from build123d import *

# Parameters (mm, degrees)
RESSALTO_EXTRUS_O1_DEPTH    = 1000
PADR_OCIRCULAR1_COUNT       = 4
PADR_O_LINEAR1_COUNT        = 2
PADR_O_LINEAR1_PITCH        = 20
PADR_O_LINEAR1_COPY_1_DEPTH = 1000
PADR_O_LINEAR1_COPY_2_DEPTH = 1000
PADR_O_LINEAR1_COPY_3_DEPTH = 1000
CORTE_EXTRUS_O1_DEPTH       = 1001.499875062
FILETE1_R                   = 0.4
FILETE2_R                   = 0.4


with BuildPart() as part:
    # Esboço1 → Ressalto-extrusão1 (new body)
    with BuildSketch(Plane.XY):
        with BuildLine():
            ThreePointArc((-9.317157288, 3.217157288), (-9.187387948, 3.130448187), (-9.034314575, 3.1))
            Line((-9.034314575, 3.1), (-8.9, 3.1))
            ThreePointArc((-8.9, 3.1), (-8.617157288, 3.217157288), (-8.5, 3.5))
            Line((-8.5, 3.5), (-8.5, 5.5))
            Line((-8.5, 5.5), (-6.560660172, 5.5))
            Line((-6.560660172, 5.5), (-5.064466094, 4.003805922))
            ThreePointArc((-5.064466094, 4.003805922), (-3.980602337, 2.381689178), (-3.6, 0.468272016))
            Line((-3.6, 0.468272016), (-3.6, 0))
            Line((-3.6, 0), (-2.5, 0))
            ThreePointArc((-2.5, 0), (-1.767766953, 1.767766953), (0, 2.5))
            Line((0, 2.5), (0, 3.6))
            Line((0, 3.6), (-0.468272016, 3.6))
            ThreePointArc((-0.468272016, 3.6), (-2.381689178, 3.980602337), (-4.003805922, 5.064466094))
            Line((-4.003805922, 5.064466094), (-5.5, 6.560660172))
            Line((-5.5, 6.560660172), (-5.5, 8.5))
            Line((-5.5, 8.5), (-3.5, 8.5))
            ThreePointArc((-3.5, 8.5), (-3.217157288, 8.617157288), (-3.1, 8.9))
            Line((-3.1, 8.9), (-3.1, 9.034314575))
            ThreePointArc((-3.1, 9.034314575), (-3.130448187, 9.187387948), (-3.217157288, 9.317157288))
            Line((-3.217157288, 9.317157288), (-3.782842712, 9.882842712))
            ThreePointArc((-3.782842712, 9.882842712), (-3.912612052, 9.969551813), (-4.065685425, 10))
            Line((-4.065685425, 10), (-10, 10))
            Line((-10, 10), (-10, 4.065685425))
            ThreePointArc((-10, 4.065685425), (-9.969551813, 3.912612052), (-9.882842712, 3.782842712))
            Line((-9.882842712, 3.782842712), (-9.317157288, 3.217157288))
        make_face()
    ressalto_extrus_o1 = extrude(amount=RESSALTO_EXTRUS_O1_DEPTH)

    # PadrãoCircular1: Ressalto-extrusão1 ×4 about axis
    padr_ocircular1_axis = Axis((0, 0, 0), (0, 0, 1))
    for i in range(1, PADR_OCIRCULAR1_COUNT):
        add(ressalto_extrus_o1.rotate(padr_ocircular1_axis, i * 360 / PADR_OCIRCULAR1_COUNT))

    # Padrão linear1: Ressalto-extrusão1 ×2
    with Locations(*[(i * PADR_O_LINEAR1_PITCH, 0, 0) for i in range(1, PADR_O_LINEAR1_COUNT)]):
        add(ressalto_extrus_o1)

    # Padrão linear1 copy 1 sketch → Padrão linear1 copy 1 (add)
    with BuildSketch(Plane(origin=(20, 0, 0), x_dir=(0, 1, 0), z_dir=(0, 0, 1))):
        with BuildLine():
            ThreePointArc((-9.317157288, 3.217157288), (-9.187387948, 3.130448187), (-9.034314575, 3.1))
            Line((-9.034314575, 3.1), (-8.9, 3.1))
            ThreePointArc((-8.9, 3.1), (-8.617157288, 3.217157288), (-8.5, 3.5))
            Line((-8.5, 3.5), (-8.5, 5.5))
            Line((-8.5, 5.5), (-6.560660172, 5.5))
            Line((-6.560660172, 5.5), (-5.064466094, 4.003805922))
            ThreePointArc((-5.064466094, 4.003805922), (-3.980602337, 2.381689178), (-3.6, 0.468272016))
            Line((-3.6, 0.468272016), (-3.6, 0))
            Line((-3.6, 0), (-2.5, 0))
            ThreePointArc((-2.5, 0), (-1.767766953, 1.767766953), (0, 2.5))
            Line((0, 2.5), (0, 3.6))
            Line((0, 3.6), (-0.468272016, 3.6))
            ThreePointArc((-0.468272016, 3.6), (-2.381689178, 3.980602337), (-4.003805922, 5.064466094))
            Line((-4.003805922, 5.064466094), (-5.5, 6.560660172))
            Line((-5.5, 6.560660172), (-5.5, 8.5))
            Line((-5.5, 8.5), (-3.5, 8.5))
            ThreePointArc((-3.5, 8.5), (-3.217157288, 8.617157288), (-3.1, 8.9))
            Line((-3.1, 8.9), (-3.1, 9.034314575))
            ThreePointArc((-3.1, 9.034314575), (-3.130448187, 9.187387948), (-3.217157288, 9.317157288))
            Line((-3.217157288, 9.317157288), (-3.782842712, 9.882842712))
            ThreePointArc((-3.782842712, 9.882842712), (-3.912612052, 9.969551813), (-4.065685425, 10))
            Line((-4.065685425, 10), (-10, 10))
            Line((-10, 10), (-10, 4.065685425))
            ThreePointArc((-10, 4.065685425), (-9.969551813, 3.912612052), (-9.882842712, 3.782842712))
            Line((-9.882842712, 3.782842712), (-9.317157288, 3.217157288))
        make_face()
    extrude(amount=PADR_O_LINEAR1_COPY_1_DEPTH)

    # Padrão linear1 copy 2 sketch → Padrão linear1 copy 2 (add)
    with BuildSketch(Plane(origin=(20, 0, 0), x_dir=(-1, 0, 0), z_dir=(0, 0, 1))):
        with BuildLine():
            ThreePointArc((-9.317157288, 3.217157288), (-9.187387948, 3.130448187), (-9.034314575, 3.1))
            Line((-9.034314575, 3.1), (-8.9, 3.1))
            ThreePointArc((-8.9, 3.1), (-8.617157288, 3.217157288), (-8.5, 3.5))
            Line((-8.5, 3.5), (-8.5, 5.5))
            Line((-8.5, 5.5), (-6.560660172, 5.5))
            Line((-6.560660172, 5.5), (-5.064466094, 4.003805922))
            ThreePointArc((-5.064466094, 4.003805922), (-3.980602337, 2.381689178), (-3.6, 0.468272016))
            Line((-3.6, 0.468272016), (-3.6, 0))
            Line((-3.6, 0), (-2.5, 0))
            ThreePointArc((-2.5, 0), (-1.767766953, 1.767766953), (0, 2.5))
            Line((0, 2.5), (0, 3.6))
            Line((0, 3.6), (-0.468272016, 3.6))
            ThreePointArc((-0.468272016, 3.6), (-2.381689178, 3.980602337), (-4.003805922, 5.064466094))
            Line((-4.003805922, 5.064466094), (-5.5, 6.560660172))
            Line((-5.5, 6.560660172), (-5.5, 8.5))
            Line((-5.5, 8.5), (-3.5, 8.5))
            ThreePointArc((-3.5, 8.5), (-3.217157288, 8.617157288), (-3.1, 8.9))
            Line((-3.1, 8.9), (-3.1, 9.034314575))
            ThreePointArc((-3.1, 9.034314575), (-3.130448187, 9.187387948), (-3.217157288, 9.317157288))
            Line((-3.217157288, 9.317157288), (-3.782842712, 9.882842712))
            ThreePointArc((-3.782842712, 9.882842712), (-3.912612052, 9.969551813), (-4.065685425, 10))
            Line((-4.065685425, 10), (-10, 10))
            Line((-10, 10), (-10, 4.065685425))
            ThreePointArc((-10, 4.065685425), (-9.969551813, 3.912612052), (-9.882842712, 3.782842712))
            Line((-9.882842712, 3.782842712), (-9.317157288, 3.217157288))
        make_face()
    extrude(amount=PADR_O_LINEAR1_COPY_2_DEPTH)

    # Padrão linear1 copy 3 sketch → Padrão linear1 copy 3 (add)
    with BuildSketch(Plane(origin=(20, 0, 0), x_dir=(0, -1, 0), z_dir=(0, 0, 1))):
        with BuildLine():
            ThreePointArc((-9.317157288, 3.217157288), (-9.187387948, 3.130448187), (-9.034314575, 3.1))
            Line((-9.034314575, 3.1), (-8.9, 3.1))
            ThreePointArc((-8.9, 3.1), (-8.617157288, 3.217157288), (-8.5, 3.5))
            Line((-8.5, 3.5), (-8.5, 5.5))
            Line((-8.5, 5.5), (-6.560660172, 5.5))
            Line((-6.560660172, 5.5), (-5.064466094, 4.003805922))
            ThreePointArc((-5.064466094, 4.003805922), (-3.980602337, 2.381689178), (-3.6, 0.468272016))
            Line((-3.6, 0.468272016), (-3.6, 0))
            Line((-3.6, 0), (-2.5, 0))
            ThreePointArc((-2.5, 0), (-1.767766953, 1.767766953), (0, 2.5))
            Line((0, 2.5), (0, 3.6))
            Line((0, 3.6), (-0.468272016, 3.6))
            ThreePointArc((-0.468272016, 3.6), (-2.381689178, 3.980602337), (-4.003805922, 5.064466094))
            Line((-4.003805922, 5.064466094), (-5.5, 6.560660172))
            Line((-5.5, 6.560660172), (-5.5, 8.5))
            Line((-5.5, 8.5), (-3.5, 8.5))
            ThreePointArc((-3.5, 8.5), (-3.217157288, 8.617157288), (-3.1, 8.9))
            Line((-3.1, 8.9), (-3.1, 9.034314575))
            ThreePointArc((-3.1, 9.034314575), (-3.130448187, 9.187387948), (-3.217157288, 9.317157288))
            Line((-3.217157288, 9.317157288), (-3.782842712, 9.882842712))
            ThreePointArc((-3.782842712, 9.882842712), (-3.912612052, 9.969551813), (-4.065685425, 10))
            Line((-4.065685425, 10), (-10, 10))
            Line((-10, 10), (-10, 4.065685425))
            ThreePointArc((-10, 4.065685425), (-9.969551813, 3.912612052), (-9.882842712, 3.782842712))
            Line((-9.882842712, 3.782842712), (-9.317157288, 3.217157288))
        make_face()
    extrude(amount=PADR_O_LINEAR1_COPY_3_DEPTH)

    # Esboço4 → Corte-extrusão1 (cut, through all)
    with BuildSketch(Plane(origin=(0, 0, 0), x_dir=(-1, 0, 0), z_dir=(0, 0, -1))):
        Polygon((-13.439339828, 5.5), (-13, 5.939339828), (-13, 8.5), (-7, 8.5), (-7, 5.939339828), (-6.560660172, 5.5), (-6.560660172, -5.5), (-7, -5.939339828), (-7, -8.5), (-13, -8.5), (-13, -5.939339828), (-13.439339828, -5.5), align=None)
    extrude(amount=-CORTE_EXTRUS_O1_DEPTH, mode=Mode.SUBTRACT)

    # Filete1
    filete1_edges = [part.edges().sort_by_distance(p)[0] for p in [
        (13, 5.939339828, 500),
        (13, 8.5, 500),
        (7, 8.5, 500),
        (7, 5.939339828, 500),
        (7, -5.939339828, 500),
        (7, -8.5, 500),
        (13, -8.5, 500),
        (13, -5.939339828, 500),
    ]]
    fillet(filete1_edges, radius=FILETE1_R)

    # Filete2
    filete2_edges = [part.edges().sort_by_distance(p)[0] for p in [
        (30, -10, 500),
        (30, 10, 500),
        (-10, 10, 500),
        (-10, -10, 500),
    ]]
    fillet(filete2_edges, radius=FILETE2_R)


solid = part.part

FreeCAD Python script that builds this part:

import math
import FreeCAD as App
import Part
import Sketcher

V = App.Vector
Q = App.Units.Quantity


def edges_at(feature, points):
    """Names of the edges that pass closest to the given points."""
    edges = feature.Shape.Edges
    near = lambda p: min(range(len(edges)), key=lambda i: edges[i].distToShape(Part.Vertex(*p))[0])
    return sorted({f"Edge{near(p) + 1}" for p in points})

doc = App.newDocument("Part")
params = doc.addObject("Spreadsheet::Sheet", "Params")
for row, (alias, value) in enumerate([
    ("sketch1_radius", "5 mm"),
    ("sketch1_radius2", "0.4 mm"),
    ("sketch1_radius3", "2.5 mm"),
    ("sketch1_width", "2 mm"),
    ("sketch1_width2", "1.1 mm"),
    ("pad1_length", "1000 mm"),
    ("linearpattern_pitch", "20 mm"),
    ("sketch2_radius", "5 mm"),
    ("sketch2_radius2", "0.4 mm"),
    ("sketch2_radius3", "2.5 mm"),
    ("sketch2_width", "2 mm"),
    ("sketch2_width2", "1.1 mm"),
    ("pad2_length", "1000 mm"),
    ("sketch3_radius", "5 mm"),
    ("sketch3_radius2", "0.4 mm"),
    ("sketch3_radius3", "2.5 mm"),
    ("sketch3_width", "2 mm"),
    ("sketch3_width2", "1.1 mm"),
    ("pad3_length", "1000 mm"),
    ("sketch4_radius", "5 mm"),
    ("sketch4_radius2", "0.4 mm"),
    ("sketch4_radius3", "2.5 mm"),
    ("sketch4_width", "2 mm"),
    ("sketch4_width2", "1.1 mm"),
    ("pad4_length", "1000 mm"),
    ("sketch5_width", "6 mm"),
    ("sketch5_height", "11 mm"),
    ("fillet_radius", "0.4 mm"),
    ("fillet2_radius", "0.4 mm"),
], start=1):
    params.set(f"A{row}", alias)
    params.set(f"B{row}", "=" + value)
    params.setAlias(f"B{row}", alias)

body = doc.addObject("PartDesign::Body", "Body")

# Sketch on XY plane
sketch1 = doc.addObject("Sketcher::SketchObject", "Sketch")
body.addObject(sketch1)
sketch1.AttachmentSupport = (doc.XY_Plane, [""])
sketch1.MapMode = "FlatFace"
sketch1.addGeometry(Part.ArcOfCircle(Part.Circle(V(-9.034315, 3.5, 0), V(0, 0, 1), 0.4), math.radians(-135), math.radians(-90)), False)
sketch1.addGeometry(Part.LineSegment(V(-9.034315, 3.1, 0), V(-8.9, 3.1, 0)), False)
sketch1.addGeometry(Part.ArcOfCircle(Part.Circle(V(-8.9, 3.5, 0), V(0, 0, 1), 0.4), math.radians(-90), math.radians(0)), False)
sketch1.addGeometry(Part.LineSegment(V(-8.5, 3.5, 0), V(-8.5, 5.5, 0)), False)
sketch1.addGeometry(Part.LineSegment(V(-8.5, 5.5, 0), V(-6.56066, 5.5, 0)), False)
sketch1.addGeometry(Part.LineSegment(V(-6.56066, 5.5, 0), V(-5.064466, 4.003806, 0)), False)
sketch1.addGeometry(Part.ArcOfCircle(Part.Circle(V(-8.6, 0.468272, 0), V(0, 0, 1), 5), math.radians(0), math.radians(45)), False)
sketch1.addGeometry(Part.LineSegment(V(-3.6, 0.468272, 0), V(-3.6, 0, 0)), False)
sketch1.addGeometry(Part.LineSegment(V(-3.6, 0, 0), V(-2.5, 0, 0)), False)
sketch1.addGeometry(Part.ArcOfCircle(Part.Circle(V(0, 0, 0), V(0, 0, 1), 2.5), math.radians(90), math.radians(180)), False)
sketch1.addGeometry(Part.LineSegment(V(0, 2.5, 0), V(0, 3.6, 0)), False)
sketch1.addGeometry(Part.LineSegment(V(0, 3.6, 0), V(-0.468272, 3.6, 0)), False)
sketch1.addGeometry(Part.ArcOfCircle(Part.Circle(V(-0.468272, 8.6, 0), V(0, 0, 1), 5), math.radians(-135), math.radians(-90)), False)
sketch1.addGeometry(Part.LineSegment(V(-4.003806, 5.064466, 0), V(-5.5, 6.56066, 0)), False)
sketch1.addGeometry(Part.LineSegment(V(-5.5, 6.56066, 0), V(-5.5, 8.5, 0)), False)
sketch1.addGeometry(Part.LineSegment(V(-5.5, 8.5, 0), V(-3.5, 8.5, 0)), False)
sketch1.addGeometry(Part.ArcOfCircle(Part.Circle(V(-3.5, 8.9, 0), V(0, 0, 1), 0.4), math.radians(-90), math.radians(0)), False)
sketch1.addGeometry(Part.LineSegment(V(-3.1, 8.9, 0), V(-3.1, 9.034315, 0)), False)
sketch1.addGeometry(Part.ArcOfCircle(Part.Circle(V(-3.5, 9.034315, 0), V(0, 0, 1), 0.4), math.radians(0), math.radians(45)), False)
sketch1.addGeometry(Part.LineSegment(V(-3.217157, 9.317157, 0), V(-3.782843, 9.882843, 0)), False)
sketch1.addGeometry(Part.ArcOfCircle(Part.Circle(V(-4.065685, 9.6, 0), V(0, 0, 1), 0.4), math.radians(45), math.radians(90)), False)
sketch1.addGeometry(Part.LineSegment(V(-4.065685, 10, 0), V(-10, 10, 0)), False)
sketch1.addGeometry(Part.LineSegment(V(-10, 10, 0), V(-10, 4.065685, 0)), False)
sketch1.addGeometry(Part.ArcOfCircle(Part.Circle(V(-9.6, 4.065685, 0), V(0, 0, 1), 0.4), math.radians(180), math.radians(225)), False)
sketch1.addGeometry(Part.LineSegment(V(-9.882843, 3.782843, 0), V(-9.317157, 3.217157, 0)), False)
sketch1.addConstraint(Sketcher.Constraint("Tangent", 0, 2, 1, 1))
sketch1.addConstraint(Sketcher.Constraint("Tangent", 1, 2, 2, 1))
sketch1.addConstraint(Sketcher.Constraint("Tangent", 2, 2, 3, 1))
sketch1.addConstraint(Sketcher.Constraint("Coincident", 3, 2, 4, 1))
sketch1.addConstraint(Sketcher.Constraint("Coincident", 4, 2, 5, 1))
sketch1.addConstraint(Sketcher.Constraint("Tangent", 5, 2, 6, 2))
sketch1.addConstraint(Sketcher.Constraint("Tangent", 6, 1, 7, 1))
sketch1.addConstraint(Sketcher.Constraint("Coincident", 7, 2, 8, 1))
sketch1.addConstraint(Sketcher.Constraint("Coincident", 8, 2, 9, 2))
sketch1.addConstraint(Sketcher.Constraint("Coincident", 9, 1, 10, 1))
sketch1.addConstraint(Sketcher.Constraint("Coincident", 10, 2, 11, 1))
sketch1.addConstraint(Sketcher.Constraint("Tangent", 11, 2, 12, 2))
sketch1.addConstraint(Sketcher.Constraint("Tangent", 12, 1, 13, 1))
sketch1.addConstraint(Sketcher.Constraint("Coincident", 13, 2, 14, 1))
sketch1.addConstraint(Sketcher.Constraint("Coincident", 14, 2, 15, 1))
sketch1.addConstraint(Sketcher.Constraint("Tangent", 15, 2, 16, 1))
sketch1.addConstraint(Sketcher.Constraint("Tangent", 16, 2, 17, 1))
sketch1.addConstraint(Sketcher.Constraint("Tangent", 17, 2, 18, 1))
sketch1.addConstraint(Sketcher.Constraint("Tangent", 18, 2, 19, 1))
sketch1.addConstraint(Sketcher.Constraint("Tangent", 19, 2, 20, 1))
sketch1.addConstraint(Sketcher.Constraint("Tangent", 20, 2, 21, 1))
sketch1.addConstraint(Sketcher.Constraint("Coincident", 21, 2, 22, 1))
sketch1.addConstraint(Sketcher.Constraint("Tangent", 22, 2, 23, 1))
sketch1.addConstraint(Sketcher.Constraint("Tangent", 23, 2, 24, 1))
sketch1.addConstraint(Sketcher.Constraint("Tangent", 24, 2, 0, 1))
sketch1.addConstraint(Sketcher.Constraint("Horizontal", 1))
sketch1.addConstraint(Sketcher.Constraint("Vertical", 3))
sketch1.addConstraint(Sketcher.Constraint("Horizontal", 4))
sketch1.addConstraint(Sketcher.Constraint("Vertical", 7))
sketch1.addConstraint(Sketcher.Constraint("Horizontal", 8))
sketch1.addConstraint(Sketcher.Constraint("Vertical", 10))
sketch1.addConstraint(Sketcher.Constraint("Horizontal", 11))
sketch1.addConstraint(Sketcher.Constraint("Vertical", 14))
sketch1.addConstraint(Sketcher.Constraint("Horizontal", 15))
sketch1.addConstraint(Sketcher.Constraint("Vertical", 17))
sketch1.addConstraint(Sketcher.Constraint("Horizontal", 21))
sketch1.addConstraint(Sketcher.Constraint("Vertical", 22))
sketch1.addConstraint(Sketcher.Constraint("Coincident", 9, 3, -1, 1))
sketch1.addConstraint(Sketcher.Constraint("Equal", 0, 2))
sketch1.addConstraint(Sketcher.Constraint("Equal", 6, 12))
sketch1.addConstraint(Sketcher.Constraint("Equal", 2, 16))
sketch1.addConstraint(Sketcher.Constraint("Equal", 16, 18))
sketch1.addConstraint(Sketcher.Constraint("Equal", 18, 20))
sketch1.addConstraint(Sketcher.Constraint("Equal", 20, 23))
sketch1.addConstraint(Sketcher.Constraint("PointOnObject", 7, 2, -1))
sketch1.addConstraint(Sketcher.Constraint("PointOnObject", 9, 1, -2))
sketch1.addConstraint(Sketcher.Constraint("Parallel", 5, 13))
sketch1.addConstraint(Sketcher.Constraint("Parallel", 13, 19))
sketch1.addConstraint(Sketcher.Constraint("Parallel", 19, 24))
sketch1.addConstraint(Sketcher.Constraint("Equal", 15, 3))
sketch1.addConstraint(Sketcher.Constraint("Equal", 11, 7))
sketch1.addConstraint(Sketcher.Constraint("Equal", 8, 10))
sketch1.addConstraint(Sketcher.Constraint("Equal", 4, 14))
sketch1.addConstraint(Sketcher.Constraint("Equal", 1, 17))
sketch1.addConstraint(Sketcher.Constraint("Equal", 21, 22))
sketch1.addConstraint(Sketcher.Constraint("Equal", 5, 13))
sketch1.addConstraint(Sketcher.Constraint("Equal", 19, 24))
sketch1.addConstraint(Sketcher.Constraint("Radius", 6, Q("5 mm")))
sketch1.addConstraint(Sketcher.Constraint("Radius", 0, Q("0.4 mm")))
sketch1.addConstraint(Sketcher.Constraint("Radius", 9, Q("2.5 mm")))
sketch1.addConstraint(Sketcher.Constraint("DistanceX", 15, 1, 15, 2, Q("2 mm")))
sketch1.addConstraint(Sketcher.Constraint("DistanceX", 8, 1, 8, 2, Q("1.1 mm")))
sketch1.addConstraint(Sketcher.Constraint("DistanceY", -1, 1, 20, 2, Q("10 mm")))
sketch1.addConstraint(Sketcher.Constraint("DistanceY", 4, 2, 14, 2, Q("3 mm")))
sketch1.addConstraint(Sketcher.Constraint("Distance", 19, Q("0.8 mm")))
sketch1.addConstraint(Sketcher.Constraint("DistanceY", -1, 1, 0, 3, Q("3.5 mm")))
sketch1.addConstraint(Sketcher.Constraint("DistanceX", 4, 1, 4, 2, Q("1.93934 mm")))
sketch1.setExpression("Constraints[57]", "Params.sketch1_radius")
sketch1.setExpression("Constraints[58]", "Params.sketch1_radius2")
sketch1.setExpression("Constraints[59]", "Params.sketch1_radius3")
sketch1.setExpression("Constraints[60]", "Params.sketch1_width")
sketch1.setExpression("Constraints[61]", "Params.sketch1_width2")
pad1 = doc.addObject("PartDesign::Pad", "Pad")
body.addObject(pad1)
pad1.Profile = sketch1
pad1.setExpression("Length", "Params.pad1_length")
doc.recompute()

polarpattern = doc.addObject("PartDesign::PolarPattern", "PolarPattern")
body.addObject(polarpattern)
polarpattern.Originals = [pad1]
polarpattern.Axis = (doc.Z_Axis, [""])
polarpattern.Angle = 360
polarpattern.Occurrences = 4
body.Tip = polarpattern
doc.recompute()

linearpattern = doc.addObject("PartDesign::LinearPattern", "LinearPattern")
body.addObject(linearpattern)
linearpattern.Originals = [pad1]
linearpattern.Direction = (doc.X_Axis, [""])
linearpattern.Mode = "offset"
linearpattern.setExpression("Offset", "Params.linearpattern_pitch")
linearpattern.Occurrences = 2
body.Tip = linearpattern

# Sketch on XY plane
sketch2 = doc.addObject("Sketcher::SketchObject", "Sketch001")
body.addObject(sketch2)
sketch2.AttachmentSupport = (doc.XY_Plane, [""])
sketch2.MapMode = "FlatFace"
sketch2.addGeometry(Part.ArcOfCircle(Part.Circle(V(16.5, -9.034315, 0), V(0, 0, 1), 0.4), math.radians(-45), math.radians(0)), False)
sketch2.addGeometry(Part.LineSegment(V(16.9, -9.034315, 0), V(16.9, -8.9, 0)), False)
sketch2.addGeometry(Part.ArcOfCircle(Part.Circle(V(16.5, -8.9, 0), V(0, 0, 1), 0.4), math.radians(0), math.radians(90)), False)
sketch2.addGeometry(Part.LineSegment(V(16.5, -8.5, 0), V(14.5, -8.5, 0)), False)
sketch2.addGeometry(Part.LineSegment(V(14.5, -8.5, 0), V(14.5, -6.56066, 0)), False)
sketch2.addGeometry(Part.LineSegment(V(14.5, -6.56066, 0), V(15.996194, -5.064466, 0)), False)
sketch2.addGeometry(Part.ArcOfCircle(Part.Circle(V(19.531728, -8.6, 0), V(0, 0, 1), 5), math.radians(90), math.radians(135)), False)
sketch2.addGeometry(Part.LineSegment(V(19.531728, -3.6, 0), V(20, -3.6, 0)), False)
sketch2.addGeometry(Part.LineSegment(V(20, -3.6, 0), V(20, -2.5, 0)), False)
sketch2.addGeometry(Part.ArcOfCircle(Part.Circle(V(20, 0, 0), V(0, 0, 1), 2.5), math.radians(180), math.radians(270)), False)
sketch2.addGeometry(Part.LineSegment(V(17.5, 0, 0), V(16.4, 0, 0)), False)
sketch2.addGeometry(Part.LineSegment(V(16.4, 0, 0), V(16.4, -0.468272, 0)), False)
sketch2.addGeometry(Part.ArcOfCircle(Part.Circle(V(11.4, -0.468272, 0), V(0, 0, 1), 5), math.radians(-45), math.radians(0)), False)
sketch2.addGeometry(Part.LineSegment(V(14.935534, -4.003806, 0), V(13.43934, -5.5, 0)), False)
sketch2.addGeometry(Part.LineSegment(V(13.43934, -5.5, 0), V(11.5, -5.5, 0)), False)
sketch2.addGeometry(Part.LineSegment(V(11.5, -5.5, 0), V(11.5, -3.5, 0)), False)
sketch2.addGeometry(Part.ArcOfCircle(Part.Circle(V(11.1, -3.5, 0), V(0, 0, 1), 0.4), math.radians(0), math.radians(90)), False)
sketch2.addGeometry(Part.LineSegment(V(11.1, -3.1, 0), V(10.965685, -3.1, 0)), False)
sketch2.addGeometry(Part.ArcOfCircle(Part.Circle(V(10.965685, -3.5, 0), V(0, 0, 1), 0.4), math.radians(90), math.radians(135)), False)
sketch2.addGeometry(Part.LineSegment(V(10.682843, -3.217157, 0), V(10.117157, -3.782843, 0)), False)
sketch2.addGeometry(Part.ArcOfCircle(Part.Circle(V(10.4, -4.065685, 0), V(0, 0, 1), 0.4), math.radians(135), math.radians(180)), False)
sketch2.addGeometry(Part.LineSegment(V(10, -4.065685, 0), V(10, -10, 0)), False)
sketch2.addGeometry(Part.LineSegment(V(10, -10, 0), V(15.934315, -10, 0)), False)
sketch2.addGeometry(Part.ArcOfCircle(Part.Circle(V(15.934315, -9.6, 0), V(0, 0, 1), 0.4), math.radians(-90), math.radians(-45)), False)
sketch2.addGeometry(Part.LineSegment(V(16.217157, -9.882843, 0), V(16.782843, -9.317157, 0)), False)
sketch2.addConstraint(Sketcher.Constraint("Tangent", 0, 2, 1, 1))
sketch2.addConstraint(Sketcher.Constraint("Tangent", 1, 2, 2, 1))
sketch2.addConstraint(Sketcher.Constraint("Tangent", 2, 2, 3, 1))
sketch2.addConstraint(Sketcher.Constraint("Coincident", 3, 2, 4, 1))
sketch2.addConstraint(Sketcher.Constraint("Coincident", 4, 2, 5, 1))
sketch2.addConstraint(Sketcher.Constraint("Tangent", 5, 2, 6, 2))
sketch2.addConstraint(Sketcher.Constraint("Tangent", 6, 1, 7, 1))
sketch2.addConstraint(Sketcher.Constraint("Coincident", 7, 2, 8, 1))
sketch2.addConstraint(Sketcher.Constraint("Coincident", 8, 2, 9, 2))
sketch2.addConstraint(Sketcher.Constraint("Coincident", 9, 1, 10, 1))
sketch2.addConstraint(Sketcher.Constraint("Coincident", 10, 2, 11, 1))
sketch2.addConstraint(Sketcher.Constraint("Tangent", 11, 2, 12, 2))
sketch2.addConstraint(Sketcher.Constraint("Tangent", 12, 1, 13, 1))
sketch2.addConstraint(Sketcher.Constraint("Coincident", 13, 2, 14, 1))
sketch2.addConstraint(Sketcher.Constraint("Coincident", 14, 2, 15, 1))
sketch2.addConstraint(Sketcher.Constraint("Tangent", 15, 2, 16, 1))
sketch2.addConstraint(Sketcher.Constraint("Tangent", 16, 2, 17, 1))
sketch2.addConstraint(Sketcher.Constraint("Tangent", 17, 2, 18, 1))
sketch2.addConstraint(Sketcher.Constraint("Tangent", 18, 2, 19, 1))
sketch2.addConstraint(Sketcher.Constraint("Tangent", 19, 2, 20, 1))
sketch2.addConstraint(Sketcher.Constraint("Tangent", 20, 2, 21, 1))
sketch2.addConstraint(Sketcher.Constraint("Coincident", 21, 2, 22, 1))
sketch2.addConstraint(Sketcher.Constraint("Tangent", 22, 2, 23, 1))
sketch2.addConstraint(Sketcher.Constraint("Tangent", 23, 2, 24, 1))
sketch2.addConstraint(Sketcher.Constraint("Tangent", 24, 2, 0, 1))
sketch2.addConstraint(Sketcher.Constraint("Vertical", 1))
sketch2.addConstraint(Sketcher.Constraint("Horizontal", 3))
sketch2.addConstraint(Sketcher.Constraint("Vertical", 4))
sketch2.addConstraint(Sketcher.Constraint("Horizontal", 7))
sketch2.addConstraint(Sketcher.Constraint("Vertical", 8))
sketch2.addConstraint(Sketcher.Constraint("Horizontal", 10))
sketch2.addConstraint(Sketcher.Constraint("Vertical", 11))
sketch2.addConstraint(Sketcher.Constraint("Horizontal", 14))
sketch2.addConstraint(Sketcher.Constraint("Vertical", 15))
sketch2.addConstraint(Sketcher.Constraint("Horizontal", 17))
sketch2.addConstraint(Sketcher.Constraint("Vertical", 21))
sketch2.addConstraint(Sketcher.Constraint("Horizontal", 22))
sketch2.addConstraint(Sketcher.Constraint("Equal", 0, 2))
sketch2.addConstraint(Sketcher.Constraint("Equal", 6, 12))
sketch2.addConstraint(Sketcher.Constraint("Equal", 2, 16))
sketch2.addConstraint(Sketcher.Constraint("Equal", 16, 18))
sketch2.addConstraint(Sketcher.Constraint("Equal", 18, 20))
sketch2.addConstraint(Sketcher.Constraint("Equal", 20, 23))
sketch2.addConstraint(Sketcher.Constraint("PointOnObject", 9, 3, -1))
sketch2.addConstraint(Sketcher.Constraint("PointOnObject", 9, 1, -1))
sketch2.addConstraint(Sketcher.Constraint("Parallel", 5, 13))
sketch2.addConstraint(Sketcher.Constraint("Parallel", 13, 19))
sketch2.addConstraint(Sketcher.Constraint("Parallel", 19, 24))
sketch2.addConstraint(Sketcher.Constraint("Vertical", 9, 3, 7, 2))
sketch2.addConstraint(Sketcher.Constraint("Equal", 17, 1))
sketch2.addConstraint(Sketcher.Constraint("Equal", 14, 4))
sketch2.addConstraint(Sketcher.Constraint("Equal", 10, 8))
sketch2.addConstraint(Sketcher.Constraint("Equal", 7, 11))
sketch2.addConstraint(Sketcher.Constraint("Equal", 3, 15))
sketch2.addConstraint(Sketcher.Constraint("Equal", 22, 21))
sketch2.addConstraint(Sketcher.Constraint("Equal", 5, 13))
sketch2.addConstraint(Sketcher.Constraint("Equal", 19, 24))
sketch2.addConstraint(Sketcher.Constraint("Radius", 6, Q("5 mm")))
sketch2.addConstraint(Sketcher.Constraint("Radius", 0, Q("0.4 mm")))
sketch2.addConstraint(Sketcher.Constraint("Radius", 9, Q("2.5 mm")))
sketch2.addConstraint(Sketcher.Constraint("DistanceX", 3, 2, 3, 1, Q("2 mm")))
sketch2.addConstraint(Sketcher.Constraint("DistanceX", 10, 2, 10, 1, Q("1.1 mm")))
sketch2.addConstraint(Sketcher.Constraint("DistanceX", -1, 1, 9, 3, Q("20 mm")))
sketch2.addConstraint(Sketcher.Constraint("DistanceX", -1, 1, 20, 2, Q("10 mm")))
sketch2.addConstraint(Sketcher.Constraint("DistanceX", 14, 2, 4, 2, Q("3 mm")))
sketch2.addConstraint(Sketcher.Constraint("Distance", 19, Q("0.8 mm")))
sketch2.addConstraint(Sketcher.Constraint("DistanceX", -1, 1, 0, 3, Q("16.5 mm")))
sketch2.addConstraint(Sketcher.Constraint("DistanceX", 14, 2, 14, 1, Q("1.93934 mm")))
sketch2.setExpression("Constraints[57]", "Params.sketch2_radius")
sketch2.setExpression("Constraints[58]", "Params.sketch2_radius2")
sketch2.setExpression("Constraints[59]", "Params.sketch2_radius3")
sketch2.setExpression("Constraints[60]", "Params.sketch2_width")
sketch2.setExpression("Constraints[61]", "Params.sketch2_width2")
pad2 = doc.addObject("PartDesign::Pad", "Pad001")
body.addObject(pad2)
pad2.Profile = sketch2
pad2.setExpression("Length", "Params.pad2_length")

# Sketch on XY plane
sketch3 = doc.addObject("Sketcher::SketchObject", "Sketch002")
body.addObject(sketch3)
sketch3.AttachmentSupport = (doc.XY_Plane, [""])
sketch3.MapMode = "FlatFace"
sketch3.addGeometry(Part.ArcOfCircle(Part.Circle(V(29.034315, -3.5, 0), V(0, 0, 1), 0.4), math.radians(45), math.radians(90)), False)
sketch3.addGeometry(Part.LineSegment(V(29.034315, -3.1, 0), V(28.9, -3.1, 0)), False)
sketch3.addGeometry(Part.ArcOfCircle(Part.Circle(V(28.9, -3.5, 0), V(0, 0, 1), 0.4), math.radians(90), math.radians(180)), False)
sketch3.addGeometry(Part.LineSegment(V(28.5, -3.5, 0), V(28.5, -5.5, 0)), False)
sketch3.addGeometry(Part.LineSegment(V(28.5, -5.5, 0), V(26.56066, -5.5, 0)), False)
sketch3.addGeometry(Part.LineSegment(V(26.56066, -5.5, 0), V(25.064466, -4.003806, 0)), False)
sketch3.addGeometry(Part.ArcOfCircle(Part.Circle(V(28.6, -0.468272, 0), V(0, 0, 1), 5), math.radians(180), math.radians(225)), False)
sketch3.addGeometry(Part.LineSegment(V(23.6, -0.468272, 0), V(23.6, 0, 0)), False)
sketch3.addGeometry(Part.LineSegment(V(23.6, 0, 0), V(22.5, 0, 0)), False)
sketch3.addGeometry(Part.ArcOfCircle(Part.Circle(V(20, 0, 0), V(0, 0, 1), 2.5), math.radians(-90), math.radians(0)), False)
sketch3.addGeometry(Part.LineSegment(V(20, -2.5, 0), V(20, -3.6, 0)), False)
sketch3.addGeometry(Part.LineSegment(V(20, -3.6, 0), V(20.468272, -3.6, 0)), False)
sketch3.addGeometry(Part.ArcOfCircle(Part.Circle(V(20.468272, -8.6, 0), V(0, 0, 1), 5), math.radians(45), math.radians(90)), False)
sketch3.addGeometry(Part.LineSegment(V(24.003806, -5.064466, 0), V(25.5, -6.56066, 0)), False)
sketch3.addGeometry(Part.LineSegment(V(25.5, -6.56066, 0), V(25.5, -8.5, 0)), False)
sketch3.addGeometry(Part.LineSegment(V(25.5, -8.5, 0), V(23.5, -8.5, 0)), False)
sketch3.addGeometry(Part.ArcOfCircle(Part.Circle(V(23.5, -8.9, 0), V(0, 0, 1), 0.4), math.radians(90), math.radians(180)), False)
sketch3.addGeometry(Part.LineSegment(V(23.1, -8.9, 0), V(23.1, -9.034315, 0)), False)
sketch3.addGeometry(Part.ArcOfCircle(Part.Circle(V(23.5, -9.034315, 0), V(0, 0, 1), 0.4), math.radians(180), math.radians(225)), False)
sketch3.addGeometry(Part.LineSegment(V(23.217157, -9.317157, 0), V(23.782843, -9.882843, 0)), False)
sketch3.addGeometry(Part.ArcOfCircle(Part.Circle(V(24.065685, -9.6, 0), V(0, 0, 1), 0.4), math.radians(-135), math.radians(-90)), False)
sketch3.addGeometry(Part.LineSegment(V(24.065685, -10, 0), V(30, -10, 0)), False)
sketch3.addGeometry(Part.LineSegment(V(30, -10, 0), V(30, -4.065685, 0)), False)
sketch3.addGeometry(Part.ArcOfCircle(Part.Circle(V(29.6, -4.065685, 0), V(0, 0, 1), 0.4), math.radians(0), math.radians(45)), False)
sketch3.addGeometry(Part.LineSegment(V(29.882843, -3.782843, 0), V(29.317157, -3.217157, 0)), False)
sketch3.addConstraint(Sketcher.Constraint("Tangent", 0, 2, 1, 1))
sketch3.addConstraint(Sketcher.Constraint("Tangent", 1, 2, 2, 1))
sketch3.addConstraint(Sketcher.Constraint("Tangent", 2, 2, 3, 1))
sketch3.addConstraint(Sketcher.Constraint("Coincident", 3, 2, 4, 1))
sketch3.addConstraint(Sketcher.Constraint("Coincident", 4, 2, 5, 1))
sketch3.addConstraint(Sketcher.Constraint("Tangent", 5, 2, 6, 2))
sketch3.addConstraint(Sketcher.Constraint("Tangent", 6, 1, 7, 1))
sketch3.addConstraint(Sketcher.Constraint("Coincident", 7, 2, 8, 1))
sketch3.addConstraint(Sketcher.Constraint("Coincident", 8, 2, 9, 2))
sketch3.addConstraint(Sketcher.Constraint("Coincident", 9, 1, 10, 1))
sketch3.addConstraint(Sketcher.Constraint("Coincident", 10, 2, 11, 1))
sketch3.addConstraint(Sketcher.Constraint("Tangent", 11, 2, 12, 2))
sketch3.addConstraint(Sketcher.Constraint("Tangent", 12, 1, 13, 1))
sketch3.addConstraint(Sketcher.Constraint("Coincident", 13, 2, 14, 1))
sketch3.addConstraint(Sketcher.Constraint("Coincident", 14, 2, 15, 1))
sketch3.addConstraint(Sketcher.Constraint("Tangent", 15, 2, 16, 1))
sketch3.addConstraint(Sketcher.Constraint("Tangent", 16, 2, 17, 1))
sketch3.addConstraint(Sketcher.Constraint("Tangent", 17, 2, 18, 1))
sketch3.addConstraint(Sketcher.Constraint("Tangent", 18, 2, 19, 1))
sketch3.addConstraint(Sketcher.Constraint("Tangent", 19, 2, 20, 1))
sketch3.addConstraint(Sketcher.Constraint("Tangent", 20, 2, 21, 1))
sketch3.addConstraint(Sketcher.Constraint("Coincident", 21, 2, 22, 1))
sketch3.addConstraint(Sketcher.Constraint("Tangent", 22, 2, 23, 1))
sketch3.addConstraint(Sketcher.Constraint("Tangent", 23, 2, 24, 1))
sketch3.addConstraint(Sketcher.Constraint("Tangent", 24, 2, 0, 1))
sketch3.addConstraint(Sketcher.Constraint("Horizontal", 1))
sketch3.addConstraint(Sketcher.Constraint("Vertical", 3))
sketch3.addConstraint(Sketcher.Constraint("Horizontal", 4))
sketch3.addConstraint(Sketcher.Constraint("Vertical", 7))
sketch3.addConstraint(Sketcher.Constraint("Horizontal", 8))
sketch3.addConstraint(Sketcher.Constraint("Vertical", 10))
sketch3.addConstraint(Sketcher.Constraint("Horizontal", 11))
sketch3.addConstraint(Sketcher.Constraint("Vertical", 14))
sketch3.addConstraint(Sketcher.Constraint("Horizontal", 15))
sketch3.addConstraint(Sketcher.Constraint("Vertical", 17))
sketch3.addConstraint(Sketcher.Constraint("Horizontal", 21))
sketch3.addConstraint(Sketcher.Constraint("Vertical", 22))
sketch3.addConstraint(Sketcher.Constraint("Equal", 0, 2))
sketch3.addConstraint(Sketcher.Constraint("Equal", 6, 12))
sketch3.addConstraint(Sketcher.Constraint("Equal", 2, 16))
sketch3.addConstraint(Sketcher.Constraint("Equal", 16, 18))
sketch3.addConstraint(Sketcher.Constraint("Equal", 18, 20))
sketch3.addConstraint(Sketcher.Constraint("Equal", 20, 23))
sketch3.addConstraint(Sketcher.Constraint("PointOnObject", 9, 3, -1))
sketch3.addConstraint(Sketcher.Constraint("PointOnObject", 7, 2, -1))
sketch3.addConstraint(Sketcher.Constraint("Parallel", 5, 13))
sketch3.addConstraint(Sketcher.Constraint("Parallel", 13, 19))
sketch3.addConstraint(Sketcher.Constraint("Parallel", 19, 24))
sketch3.addConstraint(Sketcher.Constraint("Equal", 15, 3))
sketch3.addConstraint(Sketcher.Constraint("Equal", 11, 7))
sketch3.addConstraint(Sketcher.Constraint("Equal", 8, 10))
sketch3.addConstraint(Sketcher.Constraint("Equal", 4, 14))
sketch3.addConstraint(Sketcher.Constraint("Equal", 1, 17))
sketch3.addConstraint(Sketcher.Constraint("Equal", 21, 22))
sketch3.addConstraint(Sketcher.Constraint("Equal", 5, 13))
sketch3.addConstraint(Sketcher.Constraint("Equal", 19, 24))
sketch3.addConstraint(Sketcher.Constraint("Radius", 6, Q("5 mm")))
sketch3.addConstraint(Sketcher.Constraint("Radius", 0, Q("0.4 mm")))
sketch3.addConstraint(Sketcher.Constraint("Radius", 9, Q("2.5 mm")))
sketch3.addConstraint(Sketcher.Constraint("DistanceX", 15, 2, 15, 1, Q("2 mm")))
sketch3.addConstraint(Sketcher.Constraint("Angle", 5, Q("135 deg")))
sketch3.addConstraint(Sketcher.Constraint("DistanceX", 8, 2, 8, 1, Q("1.1 mm")))
sketch3.addConstraint(Sketcher.Constraint("DistanceX", -1, 1, 9, 3, Q("20 mm")))
sketch3.addConstraint(Sketcher.Constraint("DistanceY", 20, 2, -1, 1, Q("10 mm")))
sketch3.addConstraint(Sketcher.Constraint("DistanceY", 14, 2, 4, 2, Q("3 mm")))
sketch3.addConstraint(Sketcher.Constraint("Distance", 19, Q("0.8 mm")))
sketch3.addConstraint(Sketcher.Constraint("DistanceY", 0, 3, -1, 1, Q("3.5 mm")))
sketch3.addConstraint(Sketcher.Constraint("DistanceX", 4, 2, 4, 1, Q("1.93934 mm")))
sketch3.setExpression("Constraints[56]", "Params.sketch3_radius")
sketch3.setExpression("Constraints[57]", "Params.sketch3_radius2")
sketch3.setExpression("Constraints[58]", "Params.sketch3_radius3")
sketch3.setExpression("Constraints[59]", "Params.sketch3_width")
sketch3.setExpression("Constraints[61]", "Params.sketch3_width2")
pad3 = doc.addObject("PartDesign::Pad", "Pad002")
body.addObject(pad3)
pad3.Profile = sketch3
pad3.setExpression("Length", "Params.pad3_length")

# Sketch on XY plane
sketch4 = doc.addObject("Sketcher::SketchObject", "Sketch003")
body.addObject(sketch4)
sketch4.AttachmentSupport = (doc.XY_Plane, [""])
sketch4.MapMode = "FlatFace"
sketch4.addGeometry(Part.ArcOfCircle(Part.Circle(V(23.5, 9.034315, 0), V(0, 0, 1), 0.4), math.radians(135), math.radians(180)), False)
sketch4.addGeometry(Part.LineSegment(V(23.1, 9.034315, 0), V(23.1, 8.9, 0)), False)
sketch4.addGeometry(Part.ArcOfCircle(Part.Circle(V(23.5, 8.9, 0), V(0, 0, 1), 0.4), math.radians(-180), math.radians(-90)), False)
sketch4.addGeometry(Part.LineSegment(V(23.5, 8.5, 0), V(25.5, 8.5, 0)), False)
sketch4.addGeometry(Part.LineSegment(V(25.5, 8.5, 0), V(25.5, 6.56066, 0)), False)
sketch4.addGeometry(Part.LineSegment(V(25.5, 6.56066, 0), V(24.003806, 5.064466, 0)), False)
sketch4.addGeometry(Part.ArcOfCircle(Part.Circle(V(20.468272, 8.6, 0), V(0, 0, 1), 5), math.radians(-90), math.radians(-45)), False)
sketch4.addGeometry(Part.LineSegment(V(20.468272, 3.6, 0), V(20, 3.6, 0)), False)
sketch4.addGeometry(Part.LineSegment(V(20, 3.6, 0), V(20, 2.5, 0)), False)
sketch4.addGeometry(Part.ArcOfCircle(Part.Circle(V(20, 0, 0), V(0, 0, 1), 2.5), math.radians(0), math.radians(90)), False)
sketch4.addGeometry(Part.LineSegment(V(22.5, 0, 0), V(23.6, 0, 0)), False)
sketch4.addGeometry(Part.LineSegment(V(23.6, 0, 0), V(23.6, 0.468272, 0)), False)
sketch4.addGeometry(Part.ArcOfCircle(Part.Circle(V(28.6, 0.468272, 0), V(0, 0, 1), 5), math.radians(135), math.radians(180)), False)
sketch4.addGeometry(Part.LineSegment(V(25.064466, 4.003806, 0), V(26.56066, 5.5, 0)), False)
sketch4.addGeometry(Part.LineSegment(V(26.56066, 5.5, 0), V(28.5, 5.5, 0)), False)
sketch4.addGeometry(Part.LineSegment(V(28.5, 5.5, 0), V(28.5, 3.5, 0)), False)
sketch4.addGeometry(Part.ArcOfCircle(Part.Circle(V(28.9, 3.5, 0), V(0, 0, 1), 0.4), math.radians(-180), math.radians(-90)), False)
sketch4.addGeometry(Part.LineSegment(V(28.9, 3.1, 0), V(29.034315, 3.1, 0)), False)
sketch4.addGeometry(Part.ArcOfCircle(Part.Circle(V(29.034315, 3.5, 0), V(0, 0, 1), 0.4), math.radians(-90), math.radians(-45)), False)
sketch4.addGeometry(Part.LineSegment(V(29.317157, 3.217157, 0), V(29.882843, 3.782843, 0)), False)
sketch4.addGeometry(Part.ArcOfCircle(Part.Circle(V(29.6, 4.065685, 0), V(0, 0, 1), 0.4), math.radians(-45), math.radians(0)), False)
sketch4.addGeometry(Part.LineSegment(V(30, 4.065685, 0), V(30, 10, 0)), False)
sketch4.addGeometry(Part.LineSegment(V(30, 10, 0), V(24.065685, 10, 0)), False)
sketch4.addGeometry(Part.ArcOfCircle(Part.Circle(V(24.065685, 9.6, 0), V(0, 0, 1), 0.4), math.radians(90), math.radians(135)), False)
sketch4.addGeometry(Part.LineSegment(V(23.782843, 9.882843, 0), V(23.217157, 9.317157, 0)), False)
sketch4.addConstraint(Sketcher.Constraint("Tangent", 0, 2, 1, 1))
sketch4.addConstraint(Sketcher.Constraint("Tangent", 1, 2, 2, 1))
sketch4.addConstraint(Sketcher.Constraint("Tangent", 2, 2, 3, 1))
sketch4.addConstraint(Sketcher.Constraint("Coincident", 3, 2, 4, 1))
sketch4.addConstraint(Sketcher.Constraint("Coincident", 4, 2, 5, 1))
sketch4.addConstraint(Sketcher.Constraint("Tangent", 5, 2, 6, 2))
sketch4.addConstraint(Sketcher.Constraint("Tangent", 6, 1, 7, 1))
sketch4.addConstraint(Sketcher.Constraint("Coincident", 7, 2, 8, 1))
sketch4.addConstraint(Sketcher.Constraint("Coincident", 8, 2, 9, 2))
sketch4.addConstraint(Sketcher.Constraint("Coincident", 9, 1, 10, 1))
sketch4.addConstraint(Sketcher.Constraint("Coincident", 10, 2, 11, 1))
sketch4.addConstraint(Sketcher.Constraint("Tangent", 11, 2, 12, 2))
sketch4.addConstraint(Sketcher.Constraint("Tangent", 12, 1, 13, 1))
sketch4.addConstraint(Sketcher.Constraint("Coincident", 13, 2, 14, 1))
sketch4.addConstraint(Sketcher.Constraint("Coincident", 14, 2, 15, 1))
sketch4.addConstraint(Sketcher.Constraint("Tangent", 15, 2, 16, 1))
sketch4.addConstraint(Sketcher.Constraint("Tangent", 16, 2, 17, 1))
sketch4.addConstraint(Sketcher.Constraint("Tangent", 17, 2, 18, 1))
sketch4.addConstraint(Sketcher.Constraint("Tangent", 18, 2, 19, 1))
sketch4.addConstraint(Sketcher.Constraint("Tangent", 19, 2, 20, 1))
sketch4.addConstraint(Sketcher.Constraint("Tangent", 20, 2, 21, 1))
sketch4.addConstraint(Sketcher.Constraint("Coincident", 21, 2, 22, 1))
sketch4.addConstraint(Sketcher.Constraint("Tangent", 22, 2, 23, 1))
sketch4.addConstraint(Sketcher.Constraint("Tangent", 23, 2, 24, 1))
sketch4.addConstraint(Sketcher.Constraint("Tangent", 24, 2, 0, 1))
sketch4.addConstraint(Sketcher.Constraint("Vertical", 1))
sketch4.addConstraint(Sketcher.Constraint("Horizontal", 3))
sketch4.addConstraint(Sketcher.Constraint("Vertical", 4))
sketch4.addConstraint(Sketcher.Constraint("Horizontal", 7))
sketch4.addConstraint(Sketcher.Constraint("Vertical", 8))
sketch4.addConstraint(Sketcher.Constraint("Horizontal", 10))
sketch4.addConstraint(Sketcher.Constraint("Vertical", 11))
sketch4.addConstraint(Sketcher.Constraint("Horizontal", 14))
sketch4.addConstraint(Sketcher.Constraint("Vertical", 15))
sketch4.addConstraint(Sketcher.Constraint("Horizontal", 17))
sketch4.addConstraint(Sketcher.Constraint("Vertical", 21))
sketch4.addConstraint(Sketcher.Constraint("Horizontal", 22))
sketch4.addConstraint(Sketcher.Constraint("Equal", 0, 2))
sketch4.addConstraint(Sketcher.Constraint("Equal", 6, 12))
sketch4.addConstraint(Sketcher.Constraint("Equal", 2, 16))
sketch4.addConstraint(Sketcher.Constraint("Equal", 16, 18))
sketch4.addConstraint(Sketcher.Constraint("Equal", 18, 20))
sketch4.addConstraint(Sketcher.Constraint("Equal", 20, 23))
sketch4.addConstraint(Sketcher.Constraint("PointOnObject", 9, 3, -1))
sketch4.addConstraint(Sketcher.Constraint("PointOnObject", 9, 1, -1))
sketch4.addConstraint(Sketcher.Constraint("Parallel", 5, 13))
sketch4.addConstraint(Sketcher.Constraint("Parallel", 13, 19))
sketch4.addConstraint(Sketcher.Constraint("Parallel", 19, 24))
sketch4.addConstraint(Sketcher.Constraint("Vertical", 9, 3, 7, 2))
sketch4.addConstraint(Sketcher.Constraint("Equal", 17, 1))
sketch4.addConstraint(Sketcher.Constraint("Equal", 14, 4))
sketch4.addConstraint(Sketcher.Constraint("Equal", 10, 8))
sketch4.addConstraint(Sketcher.Constraint("Equal", 7, 11))
sketch4.addConstraint(Sketcher.Constraint("Equal", 3, 15))
sketch4.addConstraint(Sketcher.Constraint("Equal", 22, 21))
sketch4.addConstraint(Sketcher.Constraint("Equal", 5, 13))
sketch4.addConstraint(Sketcher.Constraint("Equal", 19, 24))
sketch4.addConstraint(Sketcher.Constraint("Radius", 6, Q("5 mm")))
sketch4.addConstraint(Sketcher.Constraint("Radius", 0, Q("0.4 mm")))
sketch4.addConstraint(Sketcher.Constraint("Radius", 9, Q("2.5 mm")))
sketch4.addConstraint(Sketcher.Constraint("DistanceX", 3, 1, 3, 2, Q("2 mm")))
sketch4.addConstraint(Sketcher.Constraint("DistanceX", 10, 1, 10, 2, Q("1.1 mm")))
sketch4.addConstraint(Sketcher.Constraint("DistanceX", -1, 1, 9, 3, Q("20 mm")))
sketch4.addConstraint(Sketcher.Constraint("DistanceX", -1, 1, 20, 2, Q("30 mm")))
sketch4.addConstraint(Sketcher.Constraint("DistanceX", 4, 2, 14, 2, Q("3 mm")))
sketch4.addConstraint(Sketcher.Constraint("Distance", 19, Q("0.8 mm")))
sketch4.addConstraint(Sketcher.Constraint("DistanceX", -1, 1, 0, 3, Q("23.5 mm")))
sketch4.addConstraint(Sketcher.Constraint("DistanceX", 14, 1, 14, 2, Q("1.93934 mm")))
sketch4.setExpression("Constraints[57]", "Params.sketch4_radius")
sketch4.setExpression("Constraints[58]", "Params.sketch4_radius2")
sketch4.setExpression("Constraints[59]", "Params.sketch4_radius3")
sketch4.setExpression("Constraints[60]", "Params.sketch4_width")
sketch4.setExpression("Constraints[61]", "Params.sketch4_width2")
pad4 = doc.addObject("PartDesign::Pad", "Pad003")
body.addObject(pad4)
pad4.Profile = sketch4
pad4.setExpression("Length", "Params.pad4_length")

# Sketch on XY plane
sketch5 = doc.addObject("Sketcher::SketchObject", "Sketch004")
body.addObject(sketch5)
sketch5.AttachmentSupport = (doc.XY_Plane, [""])
sketch5.MapMode = "FlatFace"
sketch5.addGeometry(Part.LineSegment(V(13, 5.93934, 0), V(13.43934, 5.5, 0)), False)
sketch5.addGeometry(Part.LineSegment(V(13.43934, 5.5, 0), V(13.43934, -5.5, 0)), False)
sketch5.addGeometry(Part.LineSegment(V(13.43934, -5.5, 0), V(13, -5.93934, 0)), False)
sketch5.addGeometry(Part.LineSegment(V(13, -5.93934, 0), V(13, -8.5, 0)), False)
sketch5.addGeometry(Part.LineSegment(V(13, -8.5, 0), V(7, -8.5, 0)), False)
sketch5.addGeometry(Part.LineSegment(V(7, -8.5, 0), V(7, -5.93934, 0)), False)
sketch5.addGeometry(Part.LineSegment(V(7, -5.93934, 0), V(6.56066, -5.5, 0)), False)
sketch5.addGeometry(Part.LineSegment(V(6.56066, -5.5, 0), V(6.56066, 5.5, 0)), False)
sketch5.addGeometry(Part.LineSegment(V(6.56066, 5.5, 0), V(7, 5.93934, 0)), False)
sketch5.addGeometry(Part.LineSegment(V(7, 5.93934, 0), V(7, 8.5, 0)), False)
sketch5.addGeometry(Part.LineSegment(V(7, 8.5, 0), V(13, 8.5, 0)), False)
sketch5.addGeometry(Part.LineSegment(V(13, 8.5, 0), V(13, 5.93934, 0)), False)
sketch5.addConstraint(Sketcher.Constraint("Coincident", 0, 2, 1, 1))
sketch5.addConstraint(Sketcher.Constraint("Coincident", 1, 2, 2, 1))
sketch5.addConstraint(Sketcher.Constraint("Coincident", 2, 2, 3, 1))
sketch5.addConstraint(Sketcher.Constraint("Coincident", 3, 2, 4, 1))
sketch5.addConstraint(Sketcher.Constraint("Coincident", 4, 2, 5, 1))
sketch5.addConstraint(Sketcher.Constraint("Coincident", 5, 2, 6, 1))
sketch5.addConstraint(Sketcher.Constraint("Coincident", 6, 2, 7, 1))
sketch5.addConstraint(Sketcher.Constraint("Coincident", 7, 2, 8, 1))
sketch5.addConstraint(Sketcher.Constraint("Coincident", 8, 2, 9, 1))
sketch5.addConstraint(Sketcher.Constraint("Coincident", 9, 2, 10, 1))
sketch5.addConstraint(Sketcher.Constraint("Coincident", 10, 2, 11, 1))
sketch5.addConstraint(Sketcher.Constraint("Coincident", 11, 2, 0, 1))
sketch5.addConstraint(Sketcher.Constraint("Vertical", 1))
sketch5.addConstraint(Sketcher.Constraint("Vertical", 3))
sketch5.addConstraint(Sketcher.Constraint("Horizontal", 4))
sketch5.addConstraint(Sketcher.Constraint("Vertical", 5))
sketch5.addConstraint(Sketcher.Constraint("Vertical", 7))
sketch5.addConstraint(Sketcher.Constraint("Vertical", 9))
sketch5.addConstraint(Sketcher.Constraint("Horizontal", 10))
sketch5.addConstraint(Sketcher.Constraint("Vertical", 11))
sketch5.addConstraint(Sketcher.Constraint("Symmetric", 5, 2, 8, 2, -1))
sketch5.addConstraint(Sketcher.Constraint("Symmetric", 3, 2, 10, 2, -1))
sketch5.addConstraint(Sketcher.Constraint("Perpendicular", 0, 2))
sketch5.addConstraint(Sketcher.Constraint("Perpendicular", 2, 6))
sketch5.addConstraint(Sketcher.Constraint("Perpendicular", 6, 8))
sketch5.addConstraint(Sketcher.Constraint("Horizontal", 2, 2, 5, 2))
sketch5.addConstraint(Sketcher.Constraint("Horizontal", 1, 2, 6, 2))
sketch5.addConstraint(Sketcher.Constraint("Horizontal", 0, 2, 7, 2))
sketch5.addConstraint(Sketcher.Constraint("Horizontal", 8, 2, 11, 2))
sketch5.addConstraint(Sketcher.Constraint("DistanceX", 4, 2, 4, 1, Q("6 mm")))
sketch5.addConstraint(Sketcher.Constraint("DistanceY", 1, 2, 1, 1, Q("11 mm")))
sketch5.addConstraint(Sketcher.Constraint("DistanceX", -1, 1, 2, 2, Q("13 mm")))
sketch5.addConstraint(Sketcher.Constraint("DistanceY", 3, 2, 1, 2, Q("3 mm")))
sketch5.addConstraint(Sketcher.Constraint("DistanceY", 3, 2, 3, 1, Q("2.56066 mm")))
sketch5.setExpression("Constraints[29]", "Params.sketch5_width")
sketch5.setExpression("Constraints[30]", "Params.sketch5_height")
pocket1 = doc.addObject("PartDesign::Pocket", "Pocket")
body.addObject(pocket1)
pocket1.Profile = sketch5
pocket1.Type = "ThroughAll"
pocket1.Reversed = True
doc.recompute()

fillet = doc.addObject("PartDesign::Fillet", "Fillet")
body.addObject(fillet)
fillet.Base = (pocket1, edges_at(pocket1, [
    (13, 5.939, 500),
    (13, 8.5, 500),
    (7, 8.5, 500),
    (7, 5.939, 500),
    (7, -5.939, 500),
    (7, -8.5, 500),
    (13, -8.5, 500),
    (13, -5.939, 500),
]))
fillet.setExpression("Radius", "Params.fillet_radius")
doc.recompute()

fillet2 = doc.addObject("PartDesign::Fillet", "Fillet001")
body.addObject(fillet2)
fillet2.Base = (fillet, edges_at(fillet, [
    (30, -10, 500),
    (30, 10, 500),
    (-10, 10, 500),
    (-10, -10, 500),
]))
fillet2.setExpression("Radius", "Params.fillet2_radius")

doc.recompute()
